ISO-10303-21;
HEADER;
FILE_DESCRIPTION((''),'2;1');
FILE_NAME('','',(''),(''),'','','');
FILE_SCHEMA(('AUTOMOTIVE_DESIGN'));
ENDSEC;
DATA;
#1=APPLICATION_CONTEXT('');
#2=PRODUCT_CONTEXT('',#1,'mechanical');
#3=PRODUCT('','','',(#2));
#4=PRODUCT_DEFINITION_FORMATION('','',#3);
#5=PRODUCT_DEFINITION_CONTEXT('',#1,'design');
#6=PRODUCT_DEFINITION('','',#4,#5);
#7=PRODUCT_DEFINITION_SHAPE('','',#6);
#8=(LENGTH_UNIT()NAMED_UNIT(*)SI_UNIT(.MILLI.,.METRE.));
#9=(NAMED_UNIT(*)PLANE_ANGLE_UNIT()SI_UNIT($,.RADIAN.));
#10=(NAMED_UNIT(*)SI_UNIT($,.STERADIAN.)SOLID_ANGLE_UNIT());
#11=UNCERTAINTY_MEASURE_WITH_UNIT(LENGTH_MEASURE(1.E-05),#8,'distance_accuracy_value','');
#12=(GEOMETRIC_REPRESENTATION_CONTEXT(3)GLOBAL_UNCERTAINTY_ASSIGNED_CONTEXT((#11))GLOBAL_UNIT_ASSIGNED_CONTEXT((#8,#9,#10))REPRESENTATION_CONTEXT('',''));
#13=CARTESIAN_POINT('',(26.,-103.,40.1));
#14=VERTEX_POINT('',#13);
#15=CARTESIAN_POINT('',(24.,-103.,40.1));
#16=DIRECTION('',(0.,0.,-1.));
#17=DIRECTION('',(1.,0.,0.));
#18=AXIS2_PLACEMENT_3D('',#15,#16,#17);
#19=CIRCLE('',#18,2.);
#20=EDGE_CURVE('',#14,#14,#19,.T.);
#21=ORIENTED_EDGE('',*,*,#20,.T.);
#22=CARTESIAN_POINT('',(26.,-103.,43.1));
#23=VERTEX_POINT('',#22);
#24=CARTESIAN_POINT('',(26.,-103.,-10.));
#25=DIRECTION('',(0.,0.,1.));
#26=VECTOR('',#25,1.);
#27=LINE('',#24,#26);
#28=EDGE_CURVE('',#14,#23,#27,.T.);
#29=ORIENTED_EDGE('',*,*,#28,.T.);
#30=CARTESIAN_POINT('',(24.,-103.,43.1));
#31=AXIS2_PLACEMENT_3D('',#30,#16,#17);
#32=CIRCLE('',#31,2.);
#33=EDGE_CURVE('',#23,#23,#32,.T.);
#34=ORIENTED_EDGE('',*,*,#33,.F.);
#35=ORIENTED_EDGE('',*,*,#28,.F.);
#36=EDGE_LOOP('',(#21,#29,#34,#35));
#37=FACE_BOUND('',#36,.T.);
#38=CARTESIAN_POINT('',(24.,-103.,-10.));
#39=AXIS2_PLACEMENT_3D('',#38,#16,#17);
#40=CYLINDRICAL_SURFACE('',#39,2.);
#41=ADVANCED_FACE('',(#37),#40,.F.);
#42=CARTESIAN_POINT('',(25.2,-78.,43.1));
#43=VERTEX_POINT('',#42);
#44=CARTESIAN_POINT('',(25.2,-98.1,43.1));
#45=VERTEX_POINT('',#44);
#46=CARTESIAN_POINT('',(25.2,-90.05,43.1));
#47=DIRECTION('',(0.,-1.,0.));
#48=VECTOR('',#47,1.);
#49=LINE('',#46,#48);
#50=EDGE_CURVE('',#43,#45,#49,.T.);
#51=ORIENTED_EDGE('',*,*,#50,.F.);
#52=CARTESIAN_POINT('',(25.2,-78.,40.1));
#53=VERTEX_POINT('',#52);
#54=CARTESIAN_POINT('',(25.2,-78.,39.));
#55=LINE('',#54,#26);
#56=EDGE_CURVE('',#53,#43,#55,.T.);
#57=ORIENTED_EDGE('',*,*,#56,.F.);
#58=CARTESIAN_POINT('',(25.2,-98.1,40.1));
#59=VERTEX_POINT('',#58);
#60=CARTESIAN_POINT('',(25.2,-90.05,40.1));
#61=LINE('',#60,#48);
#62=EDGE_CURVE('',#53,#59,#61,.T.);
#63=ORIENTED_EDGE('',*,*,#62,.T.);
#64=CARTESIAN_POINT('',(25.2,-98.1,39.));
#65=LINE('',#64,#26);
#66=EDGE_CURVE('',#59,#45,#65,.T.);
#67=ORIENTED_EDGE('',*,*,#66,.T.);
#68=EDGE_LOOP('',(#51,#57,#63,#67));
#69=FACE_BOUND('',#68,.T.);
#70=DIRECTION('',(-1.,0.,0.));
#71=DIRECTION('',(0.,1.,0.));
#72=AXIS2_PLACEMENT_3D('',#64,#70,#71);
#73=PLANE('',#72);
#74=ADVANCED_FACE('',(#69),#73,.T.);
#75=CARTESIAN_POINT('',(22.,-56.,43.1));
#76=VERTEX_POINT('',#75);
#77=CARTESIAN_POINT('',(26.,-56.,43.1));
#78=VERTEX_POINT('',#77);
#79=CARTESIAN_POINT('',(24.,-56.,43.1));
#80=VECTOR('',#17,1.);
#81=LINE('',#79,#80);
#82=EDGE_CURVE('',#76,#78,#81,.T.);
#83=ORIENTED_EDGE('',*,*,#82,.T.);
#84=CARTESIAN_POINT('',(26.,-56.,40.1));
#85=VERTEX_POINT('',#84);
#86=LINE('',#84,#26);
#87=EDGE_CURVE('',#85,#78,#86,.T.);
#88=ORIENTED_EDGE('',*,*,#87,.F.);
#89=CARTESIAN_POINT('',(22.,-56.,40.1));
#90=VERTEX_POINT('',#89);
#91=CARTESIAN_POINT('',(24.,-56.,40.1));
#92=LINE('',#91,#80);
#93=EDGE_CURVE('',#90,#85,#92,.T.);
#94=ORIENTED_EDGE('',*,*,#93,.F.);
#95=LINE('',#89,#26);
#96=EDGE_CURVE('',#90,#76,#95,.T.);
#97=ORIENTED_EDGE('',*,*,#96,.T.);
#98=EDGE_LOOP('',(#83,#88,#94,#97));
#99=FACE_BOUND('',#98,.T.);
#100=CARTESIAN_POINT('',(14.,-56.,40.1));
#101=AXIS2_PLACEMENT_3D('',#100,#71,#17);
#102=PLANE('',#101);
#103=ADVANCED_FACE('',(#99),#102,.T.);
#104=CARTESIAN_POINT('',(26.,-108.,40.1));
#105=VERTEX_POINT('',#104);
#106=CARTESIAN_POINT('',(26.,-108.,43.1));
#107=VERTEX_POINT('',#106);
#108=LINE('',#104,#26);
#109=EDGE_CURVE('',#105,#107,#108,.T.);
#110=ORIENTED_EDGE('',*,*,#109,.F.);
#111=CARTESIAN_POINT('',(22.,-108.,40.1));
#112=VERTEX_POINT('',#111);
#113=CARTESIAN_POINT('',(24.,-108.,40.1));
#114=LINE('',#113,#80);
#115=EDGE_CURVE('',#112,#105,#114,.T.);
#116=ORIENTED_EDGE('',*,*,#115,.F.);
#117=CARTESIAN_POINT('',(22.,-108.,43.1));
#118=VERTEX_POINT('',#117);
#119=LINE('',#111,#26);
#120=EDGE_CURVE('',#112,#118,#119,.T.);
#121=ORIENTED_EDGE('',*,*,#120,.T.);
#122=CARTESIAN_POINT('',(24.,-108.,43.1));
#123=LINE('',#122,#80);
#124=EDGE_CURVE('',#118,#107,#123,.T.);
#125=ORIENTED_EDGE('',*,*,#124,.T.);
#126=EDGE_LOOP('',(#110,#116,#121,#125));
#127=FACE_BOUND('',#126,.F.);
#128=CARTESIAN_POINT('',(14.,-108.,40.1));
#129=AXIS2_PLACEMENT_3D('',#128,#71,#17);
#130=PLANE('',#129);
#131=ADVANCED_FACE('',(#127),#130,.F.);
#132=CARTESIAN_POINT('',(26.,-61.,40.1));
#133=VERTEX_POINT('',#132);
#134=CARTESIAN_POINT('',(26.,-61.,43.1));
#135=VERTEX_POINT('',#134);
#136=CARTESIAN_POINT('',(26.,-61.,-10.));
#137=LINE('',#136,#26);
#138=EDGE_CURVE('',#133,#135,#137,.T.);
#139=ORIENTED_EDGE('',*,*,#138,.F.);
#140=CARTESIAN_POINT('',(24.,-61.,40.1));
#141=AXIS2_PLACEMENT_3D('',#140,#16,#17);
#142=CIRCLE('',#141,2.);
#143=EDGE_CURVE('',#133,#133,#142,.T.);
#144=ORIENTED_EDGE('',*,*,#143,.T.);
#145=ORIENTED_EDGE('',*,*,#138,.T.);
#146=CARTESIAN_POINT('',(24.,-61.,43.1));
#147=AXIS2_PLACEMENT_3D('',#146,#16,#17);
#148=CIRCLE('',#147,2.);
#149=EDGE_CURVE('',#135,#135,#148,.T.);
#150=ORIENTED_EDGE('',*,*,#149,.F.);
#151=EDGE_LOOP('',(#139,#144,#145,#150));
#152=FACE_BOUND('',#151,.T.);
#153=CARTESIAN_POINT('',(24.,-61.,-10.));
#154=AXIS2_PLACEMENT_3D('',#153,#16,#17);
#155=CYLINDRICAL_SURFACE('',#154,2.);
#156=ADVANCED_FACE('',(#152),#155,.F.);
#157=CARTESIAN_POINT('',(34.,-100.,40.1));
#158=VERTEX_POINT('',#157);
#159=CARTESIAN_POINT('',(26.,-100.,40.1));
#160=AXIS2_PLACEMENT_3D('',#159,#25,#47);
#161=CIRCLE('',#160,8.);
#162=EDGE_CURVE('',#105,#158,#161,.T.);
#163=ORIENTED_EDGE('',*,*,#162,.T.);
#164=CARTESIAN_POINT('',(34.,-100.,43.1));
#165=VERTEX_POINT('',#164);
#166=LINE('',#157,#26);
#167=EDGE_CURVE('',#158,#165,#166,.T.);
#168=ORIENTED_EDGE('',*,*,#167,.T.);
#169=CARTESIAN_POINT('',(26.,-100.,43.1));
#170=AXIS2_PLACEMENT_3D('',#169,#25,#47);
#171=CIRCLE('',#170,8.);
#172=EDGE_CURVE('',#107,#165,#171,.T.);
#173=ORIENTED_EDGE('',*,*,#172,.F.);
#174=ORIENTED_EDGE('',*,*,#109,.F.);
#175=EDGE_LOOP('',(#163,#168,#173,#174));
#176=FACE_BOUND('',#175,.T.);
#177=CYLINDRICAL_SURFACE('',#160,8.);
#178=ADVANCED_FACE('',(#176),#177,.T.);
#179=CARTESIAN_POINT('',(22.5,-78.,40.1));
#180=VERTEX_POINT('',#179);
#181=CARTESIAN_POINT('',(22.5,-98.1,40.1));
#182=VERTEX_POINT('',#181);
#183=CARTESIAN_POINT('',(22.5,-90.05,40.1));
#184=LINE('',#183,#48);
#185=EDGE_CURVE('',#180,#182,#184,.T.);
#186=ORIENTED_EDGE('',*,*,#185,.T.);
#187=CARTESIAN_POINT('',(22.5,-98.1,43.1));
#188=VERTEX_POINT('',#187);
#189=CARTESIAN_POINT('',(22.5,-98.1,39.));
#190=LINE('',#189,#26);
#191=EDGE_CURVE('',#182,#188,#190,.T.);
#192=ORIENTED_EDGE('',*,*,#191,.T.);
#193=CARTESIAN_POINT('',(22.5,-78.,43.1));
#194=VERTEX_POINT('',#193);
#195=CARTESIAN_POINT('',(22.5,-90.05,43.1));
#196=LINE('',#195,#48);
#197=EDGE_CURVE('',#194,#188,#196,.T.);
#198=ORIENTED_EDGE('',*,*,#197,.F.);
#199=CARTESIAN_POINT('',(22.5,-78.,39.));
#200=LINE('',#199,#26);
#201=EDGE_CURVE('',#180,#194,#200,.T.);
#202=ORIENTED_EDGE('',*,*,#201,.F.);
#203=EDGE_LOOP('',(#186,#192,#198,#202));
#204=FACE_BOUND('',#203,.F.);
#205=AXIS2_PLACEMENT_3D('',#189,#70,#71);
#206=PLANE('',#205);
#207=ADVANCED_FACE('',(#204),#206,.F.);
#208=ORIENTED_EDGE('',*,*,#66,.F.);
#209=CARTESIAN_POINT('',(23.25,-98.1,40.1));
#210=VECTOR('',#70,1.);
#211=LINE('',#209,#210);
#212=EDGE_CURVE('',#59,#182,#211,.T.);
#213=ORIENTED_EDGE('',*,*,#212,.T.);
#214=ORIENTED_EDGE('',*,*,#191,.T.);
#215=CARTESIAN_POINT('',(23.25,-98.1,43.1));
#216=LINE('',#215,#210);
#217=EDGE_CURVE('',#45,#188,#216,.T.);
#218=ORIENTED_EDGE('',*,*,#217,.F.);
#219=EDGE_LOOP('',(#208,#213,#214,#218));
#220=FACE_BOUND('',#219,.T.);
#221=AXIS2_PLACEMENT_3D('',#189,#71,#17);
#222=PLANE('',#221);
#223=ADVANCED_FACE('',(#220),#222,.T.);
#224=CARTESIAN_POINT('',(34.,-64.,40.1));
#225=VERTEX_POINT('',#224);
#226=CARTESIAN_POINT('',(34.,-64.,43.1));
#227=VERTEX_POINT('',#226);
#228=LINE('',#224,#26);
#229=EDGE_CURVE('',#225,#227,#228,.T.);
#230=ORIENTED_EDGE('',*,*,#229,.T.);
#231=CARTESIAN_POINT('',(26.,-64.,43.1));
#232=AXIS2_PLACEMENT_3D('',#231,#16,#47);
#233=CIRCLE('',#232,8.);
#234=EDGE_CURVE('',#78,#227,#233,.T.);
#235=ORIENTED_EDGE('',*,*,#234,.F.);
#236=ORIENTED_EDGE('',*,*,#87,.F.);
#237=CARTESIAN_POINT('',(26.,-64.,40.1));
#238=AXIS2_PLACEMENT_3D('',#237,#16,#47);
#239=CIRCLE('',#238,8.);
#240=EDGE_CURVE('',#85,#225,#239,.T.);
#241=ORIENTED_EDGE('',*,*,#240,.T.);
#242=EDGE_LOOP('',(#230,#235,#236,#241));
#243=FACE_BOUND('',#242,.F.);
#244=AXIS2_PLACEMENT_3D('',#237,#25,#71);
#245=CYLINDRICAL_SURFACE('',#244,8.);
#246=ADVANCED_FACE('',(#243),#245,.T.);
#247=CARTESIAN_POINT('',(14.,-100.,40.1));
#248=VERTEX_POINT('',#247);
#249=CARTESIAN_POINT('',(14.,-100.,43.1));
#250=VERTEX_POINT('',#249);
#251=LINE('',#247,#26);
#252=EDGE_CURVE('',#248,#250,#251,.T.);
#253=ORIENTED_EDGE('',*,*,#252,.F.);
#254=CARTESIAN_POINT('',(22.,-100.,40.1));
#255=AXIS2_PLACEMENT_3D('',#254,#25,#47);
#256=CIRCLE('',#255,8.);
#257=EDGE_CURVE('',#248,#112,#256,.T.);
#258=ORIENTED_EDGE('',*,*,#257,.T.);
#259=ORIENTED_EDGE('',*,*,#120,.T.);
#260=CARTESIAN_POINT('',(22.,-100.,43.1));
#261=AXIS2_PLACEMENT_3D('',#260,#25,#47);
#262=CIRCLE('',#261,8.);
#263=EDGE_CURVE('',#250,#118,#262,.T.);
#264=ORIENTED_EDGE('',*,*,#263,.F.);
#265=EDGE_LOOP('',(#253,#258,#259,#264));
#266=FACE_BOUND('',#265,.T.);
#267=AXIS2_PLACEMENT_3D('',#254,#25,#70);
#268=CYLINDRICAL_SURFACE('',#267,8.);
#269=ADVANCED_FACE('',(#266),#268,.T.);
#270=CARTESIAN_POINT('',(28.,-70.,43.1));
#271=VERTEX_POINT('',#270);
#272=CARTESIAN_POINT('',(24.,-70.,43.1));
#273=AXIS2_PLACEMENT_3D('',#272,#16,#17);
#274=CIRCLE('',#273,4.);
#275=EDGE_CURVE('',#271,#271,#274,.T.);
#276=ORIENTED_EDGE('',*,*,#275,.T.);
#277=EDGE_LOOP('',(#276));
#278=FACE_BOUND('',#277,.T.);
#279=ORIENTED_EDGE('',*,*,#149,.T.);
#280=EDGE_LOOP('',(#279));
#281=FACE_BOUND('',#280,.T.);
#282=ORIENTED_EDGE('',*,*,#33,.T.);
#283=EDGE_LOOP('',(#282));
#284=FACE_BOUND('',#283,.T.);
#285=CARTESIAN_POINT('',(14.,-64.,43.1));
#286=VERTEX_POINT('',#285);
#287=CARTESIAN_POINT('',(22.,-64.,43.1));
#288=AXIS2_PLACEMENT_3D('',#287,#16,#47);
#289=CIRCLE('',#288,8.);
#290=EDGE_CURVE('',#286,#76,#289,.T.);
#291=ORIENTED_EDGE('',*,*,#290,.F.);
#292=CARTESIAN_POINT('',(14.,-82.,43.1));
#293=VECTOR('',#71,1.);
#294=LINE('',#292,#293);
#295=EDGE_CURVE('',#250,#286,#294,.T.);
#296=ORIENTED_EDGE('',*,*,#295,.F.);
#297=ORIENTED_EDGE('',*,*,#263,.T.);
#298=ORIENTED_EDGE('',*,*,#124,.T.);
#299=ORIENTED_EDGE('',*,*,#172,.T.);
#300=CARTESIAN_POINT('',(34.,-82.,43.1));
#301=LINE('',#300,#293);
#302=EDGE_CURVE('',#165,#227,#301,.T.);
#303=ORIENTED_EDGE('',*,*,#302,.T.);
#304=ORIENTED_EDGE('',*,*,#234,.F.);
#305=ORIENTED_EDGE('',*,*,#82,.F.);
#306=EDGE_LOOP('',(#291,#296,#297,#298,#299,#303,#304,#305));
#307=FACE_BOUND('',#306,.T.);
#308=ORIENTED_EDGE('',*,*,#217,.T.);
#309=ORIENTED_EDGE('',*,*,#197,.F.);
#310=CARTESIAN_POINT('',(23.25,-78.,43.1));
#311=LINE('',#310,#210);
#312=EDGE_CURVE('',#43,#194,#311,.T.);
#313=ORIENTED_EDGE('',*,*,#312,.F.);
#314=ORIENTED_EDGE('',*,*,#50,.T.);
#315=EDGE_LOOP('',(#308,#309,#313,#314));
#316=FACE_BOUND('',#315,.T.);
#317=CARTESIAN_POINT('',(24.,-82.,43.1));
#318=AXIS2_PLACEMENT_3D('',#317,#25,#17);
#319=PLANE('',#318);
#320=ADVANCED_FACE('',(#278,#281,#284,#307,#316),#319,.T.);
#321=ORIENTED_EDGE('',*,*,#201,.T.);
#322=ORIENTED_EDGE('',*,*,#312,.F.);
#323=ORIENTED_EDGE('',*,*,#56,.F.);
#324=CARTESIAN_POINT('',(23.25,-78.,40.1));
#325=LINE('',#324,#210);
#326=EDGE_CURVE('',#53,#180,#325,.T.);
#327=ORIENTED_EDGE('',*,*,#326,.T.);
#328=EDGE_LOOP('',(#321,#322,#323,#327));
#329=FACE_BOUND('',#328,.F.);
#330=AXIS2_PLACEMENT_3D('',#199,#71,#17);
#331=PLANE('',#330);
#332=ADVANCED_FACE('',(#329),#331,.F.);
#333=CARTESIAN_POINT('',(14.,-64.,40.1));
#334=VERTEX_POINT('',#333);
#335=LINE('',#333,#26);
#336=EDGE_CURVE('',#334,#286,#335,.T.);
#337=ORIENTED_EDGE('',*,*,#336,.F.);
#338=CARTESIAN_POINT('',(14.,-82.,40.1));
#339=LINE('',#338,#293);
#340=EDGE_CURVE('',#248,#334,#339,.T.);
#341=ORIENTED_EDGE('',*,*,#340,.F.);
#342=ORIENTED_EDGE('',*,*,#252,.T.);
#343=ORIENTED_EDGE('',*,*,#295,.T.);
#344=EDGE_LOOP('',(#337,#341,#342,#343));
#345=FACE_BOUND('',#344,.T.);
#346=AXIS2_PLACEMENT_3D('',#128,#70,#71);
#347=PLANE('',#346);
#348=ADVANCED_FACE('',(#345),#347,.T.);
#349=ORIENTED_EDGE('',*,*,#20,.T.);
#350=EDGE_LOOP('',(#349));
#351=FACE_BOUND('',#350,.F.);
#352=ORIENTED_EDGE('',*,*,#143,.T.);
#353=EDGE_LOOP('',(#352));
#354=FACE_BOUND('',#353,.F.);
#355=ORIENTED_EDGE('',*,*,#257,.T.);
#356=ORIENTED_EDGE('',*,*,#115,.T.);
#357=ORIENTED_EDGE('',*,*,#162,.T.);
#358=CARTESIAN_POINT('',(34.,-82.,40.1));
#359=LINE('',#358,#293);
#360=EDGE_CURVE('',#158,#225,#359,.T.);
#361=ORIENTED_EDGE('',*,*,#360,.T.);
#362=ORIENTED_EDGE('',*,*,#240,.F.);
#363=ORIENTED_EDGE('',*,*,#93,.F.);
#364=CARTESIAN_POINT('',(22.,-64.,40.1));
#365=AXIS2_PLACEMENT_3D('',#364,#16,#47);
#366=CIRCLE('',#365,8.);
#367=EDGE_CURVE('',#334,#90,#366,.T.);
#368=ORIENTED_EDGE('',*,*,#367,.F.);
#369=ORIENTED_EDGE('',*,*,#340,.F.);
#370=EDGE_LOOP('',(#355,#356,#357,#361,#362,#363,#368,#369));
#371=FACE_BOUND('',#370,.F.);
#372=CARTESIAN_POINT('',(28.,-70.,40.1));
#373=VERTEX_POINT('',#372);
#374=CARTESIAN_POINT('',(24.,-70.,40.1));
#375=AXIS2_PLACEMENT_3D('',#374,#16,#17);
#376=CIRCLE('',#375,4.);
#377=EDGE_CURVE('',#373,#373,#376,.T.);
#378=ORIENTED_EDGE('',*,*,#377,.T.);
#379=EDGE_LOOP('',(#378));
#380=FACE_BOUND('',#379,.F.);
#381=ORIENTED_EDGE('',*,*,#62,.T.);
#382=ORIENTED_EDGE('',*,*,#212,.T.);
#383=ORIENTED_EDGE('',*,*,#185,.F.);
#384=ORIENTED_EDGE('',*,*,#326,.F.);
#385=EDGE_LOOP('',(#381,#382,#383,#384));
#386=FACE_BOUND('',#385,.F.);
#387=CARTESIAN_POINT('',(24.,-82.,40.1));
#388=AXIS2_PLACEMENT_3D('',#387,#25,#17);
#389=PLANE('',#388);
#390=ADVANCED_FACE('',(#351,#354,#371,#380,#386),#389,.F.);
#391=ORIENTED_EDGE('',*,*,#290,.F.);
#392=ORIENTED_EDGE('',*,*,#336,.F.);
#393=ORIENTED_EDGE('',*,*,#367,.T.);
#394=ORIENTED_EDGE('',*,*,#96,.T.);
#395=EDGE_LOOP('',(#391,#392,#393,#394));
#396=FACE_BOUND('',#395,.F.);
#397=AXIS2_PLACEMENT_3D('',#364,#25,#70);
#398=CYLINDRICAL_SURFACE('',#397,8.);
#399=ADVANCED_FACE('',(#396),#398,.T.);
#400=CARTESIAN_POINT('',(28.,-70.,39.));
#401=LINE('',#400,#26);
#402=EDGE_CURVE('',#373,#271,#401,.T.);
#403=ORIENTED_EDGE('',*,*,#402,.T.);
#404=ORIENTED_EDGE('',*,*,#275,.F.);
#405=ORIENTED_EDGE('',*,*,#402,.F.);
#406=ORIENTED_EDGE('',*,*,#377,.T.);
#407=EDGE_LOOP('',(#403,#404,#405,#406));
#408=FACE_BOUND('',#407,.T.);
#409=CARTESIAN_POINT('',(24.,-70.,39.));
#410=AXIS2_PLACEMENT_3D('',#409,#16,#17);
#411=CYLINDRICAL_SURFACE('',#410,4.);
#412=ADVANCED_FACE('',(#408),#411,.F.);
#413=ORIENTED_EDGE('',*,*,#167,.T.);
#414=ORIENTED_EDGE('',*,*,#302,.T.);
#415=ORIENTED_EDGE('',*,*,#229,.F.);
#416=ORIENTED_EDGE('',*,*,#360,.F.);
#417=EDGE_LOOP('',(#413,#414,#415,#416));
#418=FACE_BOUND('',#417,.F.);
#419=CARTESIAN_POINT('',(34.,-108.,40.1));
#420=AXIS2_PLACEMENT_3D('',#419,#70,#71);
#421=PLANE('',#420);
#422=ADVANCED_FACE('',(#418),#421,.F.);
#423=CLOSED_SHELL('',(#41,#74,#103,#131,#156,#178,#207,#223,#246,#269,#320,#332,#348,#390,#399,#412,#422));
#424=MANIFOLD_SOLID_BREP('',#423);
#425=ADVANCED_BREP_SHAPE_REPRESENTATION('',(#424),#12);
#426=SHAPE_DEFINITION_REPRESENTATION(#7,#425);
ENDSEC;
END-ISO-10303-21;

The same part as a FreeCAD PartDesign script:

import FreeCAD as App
import Part
import Sketcher
from FreeCAD import Vector
Q = App.Units.Quantity


def edges_at(feature, points):
    """Names of the edges that pass closest to the given points."""
    edges = feature.Shape.Edges
    near = lambda p: min(range(len(edges)), key=lambda i: edges[i].distToShape(Part.Vertex(*p))[0])
    return sorted({f"Edge{near(p) + 1}" for p in points})


def add_polygon(sketch, points):
    """Adds a closed chain of lines whose ends are joined by coincident constraints."""
    first, n = sketch.GeometryCount, len(points)
    for a, b in zip(points, points[1:] + points[:1]):
        sketch.addGeometry(Part.LineSegment(App.Vector(*a, 0), App.Vector(*b, 0)), False)
    for i in range(n):
        sketch.addConstraint(Sketcher.Constraint("Coincident", first + i, 2, first + (i + 1) % n, 1))

doc = App.newDocument("Part")
body = doc.addObject("PartDesign::Body", "Body")

sketch1 = body.newObject("Sketcher::SketchObject", "Sketch")
sketch1.AttachmentSupport = (doc.getObject("XY_Plane"), [""])
sketch1.MapMode = "FlatFace"
sketch1.AttachmentOffset = App.Placement(Vector(0, 0, -10), App.Rotation())
sketch1.addGeometry(Part.Circle(Vector(-90, -103, 0), Vector(0, 0, 1), 2), False)
sketch1.addConstraint(Sketcher.Constraint("Diameter", 0, Q("4 mm")))
sketch1.addConstraint(Sketcher.Constraint("DistanceX", 0, 3, -1, 1, Q("90 mm")))
sketch1.addConstraint(Sketcher.Constraint("DistanceY", 0, 3, -1, 1, Q("103 mm")))
pad1 = body.newObject("PartDesign::Pad", "Pad")
pad1.Profile = sketch1
pad1.Length = 70
body2 = doc.addObject("PartDesign::Body", "Body001")
body2.AllowCompound = True

sketch2 = body2.newObject("Sketcher::SketchObject", "Sketch001")
sketch2.AttachmentSupport = (doc.getObject("XY_Plane001"), [""])
sketch2.MapMode = "FlatFace"
sketch2.AttachmentOffset = App.Placement(Vector(0, 0, -10), App.Rotation())
sketch2.addGeometry(Part.Circle(Vector(-90, -61, 0), Vector(0, 0, 1), 2), False)
sketch2.addConstraint(Sketcher.Constraint("Diameter", 0, Q("4 mm")))
sketch2.addConstraint(Sketcher.Constraint("DistanceX", 0, 3, -1, 1, Q("90 mm")))
sketch2.addConstraint(Sketcher.Constraint("DistanceY", 0, 3, -1, 1, Q("61 mm")))
pad2 = body2.newObject("PartDesign::Pad", "Pad001")
pad2.Profile = sketch2
pad2.Length = 70
doc.recompute()

boolean = body2.newObject("PartDesign::Boolean", "Boolean")
boolean.Type = "Fuse"
boolean.addObjects([body])
body3 = doc.addObject("PartDesign::Body", "Body002")
body3.AllowCompound = True
doc.recompute()

body2.Placement = App.Placement(Vector(114, 0, 0), App.Rotation(Vector(0, 0, 1), 0))
boolean2 = body3.newObject("PartDesign::Boolean", "Boolean001")
boolean2.Type = "Fuse"
boolean2.addObjects([body2])
body4 = doc.addObject("PartDesign::Body", "Body003")

sketch3 = body4.newObject("Sketcher::SketchObject", "Sketch002")
sketch3.AttachmentSupport = (doc.getObject("XY_Plane003"), [""])
sketch3.MapMode = "FlatFace"
sketch3.AttachmentOffset = App.Placement(Vector(0, 0, 39), App.Rotation())
sketch3.addGeometry(Part.Circle(Vector(24, -70, 0), Vector(0, 0, 1), 4), False)
sketch3.addConstraint(Sketcher.Constraint("Diameter", 0, Q("8 mm")))
sketch3.addConstraint(Sketcher.Constraint("DistanceX", -1, 1, 0, 3, Q("24 mm")))
sketch3.addConstraint(Sketcher.Constraint("DistanceY", 0, 3, -1, 1, Q("70 mm")))
pad3 = body4.newObject("PartDesign::Pad", "Pad002")
pad3.Profile = sketch3
pad3.Length = 5
body5 = doc.addObject("PartDesign::Body", "Body004")

sketch4 = body5.newObject("Sketcher::SketchObject", "Sketch003")
sketch4.AttachmentSupport = (doc.getObject("XY_Plane004"), [""])
sketch4.MapMode = "FlatFace"
sketch4.AttachmentOffset = App.Placement(Vector(0, 0, 39), App.Rotation())
add_polygon(sketch4, [(22.5, -78), (22.5, -98.1), (25.2, -98.1), (25.2, -78)])
sketch4.addConstraint(Sketcher.Constraint("Vertical", 0))
sketch4.addConstraint(Sketcher.Constraint("Horizontal", 1))
sketch4.addConstraint(Sketcher.Constraint("Vertical", 2))
sketch4.addConstraint(Sketcher.Constraint("Horizontal", 3))
sketch4.addConstraint(Sketcher.Constraint("DistanceX", 1, 1, 1, 2, Q("2.7 mm")))
sketch4.addConstraint(Sketcher.Constraint("DistanceY", 0, 2, 0, 1, Q("20.1 mm")))
sketch4.addConstraint(Sketcher.Constraint("DistanceY", 2, 2, -1, 1, Q("78 mm")))
sketch4.addConstraint(Sketcher.Constraint("DistanceX", -1, 1, 0, 2, Q("22.5 mm")))
pad4 = body5.newObject("PartDesign::Pad", "Pad003")
pad4.Profile = sketch4
pad4.Length = 5
body6 = doc.addObject("PartDesign::Body", "Body005")

sketch5 = body6.newObject("Sketcher::SketchObject", "Sketch004")
sketch5.AttachmentSupport = (doc.getObject("XY_Plane005"), [""])
sketch5.MapMode = "FlatFace"
sketch5.AttachmentOffset = App.Placement(Vector(0, 0, 40.1), App.Rotation())
add_polygon(sketch5, [(14, -56), (14, -108), (34, -108), (34, -56)])
sketch5.addConstraint(Sketcher.Constraint("Vertical", 0))
sketch5.addConstraint(Sketcher.Constraint("Horizontal", 1))
sketch5.addConstraint(Sketcher.Constraint("Vertical", 2))
sketch5.addConstraint(Sketcher.Constraint("Horizontal", 3))
sketch5.addConstraint(Sketcher.Constraint("DistanceX", 1, 1, 1, 2, Q("20 mm")))
sketch5.addConstraint(Sketcher.Constraint("DistanceY", 0, 2, 0, 1, Q("52 mm")))
sketch5.addConstraint(Sketcher.Constraint("DistanceX", -1, 1, 0, 2, Q("14 mm")))
sketch5.addConstraint(Sketcher.Constraint("DistanceY", 0, 2, -1, 1, Q("108 mm")))
pad5 = body6.newObject("PartDesign::Pad", "Pad004")
pad5.Profile = sketch5
pad5.Length = 3
doc.recompute()

boolean3 = body6.newObject("PartDesign::Boolean", "Boolean002")
boolean3.Type = "Cut"
boolean3.addObjects([body5])
doc.recompute()

fillet = body6.newObject("PartDesign::Fillet", "Fillet")
fillet.Base = (boolean3, edges_at(boolean3, [
    (14, -108, 41.6),
    (14, -56, 41.6),
    (34, -108, 41.6),
    (34, -56, 41.6),
]))
fillet.Radius = 8
doc.recompute()

boolean4 = body6.newObject("PartDesign::Boolean", "Boolean003")
boolean4.Type = "Cut"
boolean4.addObjects([body4])
doc.recompute()

boolean5 = body6.newObject("PartDesign::Boolean", "Boolean004")
boolean5.Type = "Cut"
boolean5.addObjects([body3])

doc.recompute()
